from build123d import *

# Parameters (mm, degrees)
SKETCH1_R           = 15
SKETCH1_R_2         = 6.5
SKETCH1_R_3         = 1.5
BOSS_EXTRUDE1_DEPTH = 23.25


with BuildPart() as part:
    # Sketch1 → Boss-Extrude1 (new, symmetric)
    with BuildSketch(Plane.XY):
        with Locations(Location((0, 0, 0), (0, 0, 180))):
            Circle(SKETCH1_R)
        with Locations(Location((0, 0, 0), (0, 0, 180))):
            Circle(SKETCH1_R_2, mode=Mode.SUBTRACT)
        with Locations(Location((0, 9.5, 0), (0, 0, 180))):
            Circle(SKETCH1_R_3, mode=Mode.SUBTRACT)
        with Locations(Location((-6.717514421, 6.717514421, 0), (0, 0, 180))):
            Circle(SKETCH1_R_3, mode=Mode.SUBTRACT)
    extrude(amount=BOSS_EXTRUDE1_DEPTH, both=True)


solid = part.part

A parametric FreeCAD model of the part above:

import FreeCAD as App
import Part
import Sketcher
from FreeCAD import Vector
Q = App.Units.Quantity

doc = App.newDocument("Part")
body = doc.addObject("PartDesign::Body", "Body")

sketch1 = body.newObject("Sketcher::SketchObject", "Sketch")
sketch1.AttachmentSupport = (doc.getObject("XY_Plane"), [""])
sketch1.MapMode = "FlatFace"
sketch1.addGeometry(Part.Circle(Vector(0, 0, 0), Vector(0, 0, 1), 15), False)
sketch1.addGeometry(Part.Circle(Vector(0, 9.5, 0), Vector(0, 0, 1), 1.5), False)
sketch1.addGeometry(Part.Circle(Vector(-6.7, 6.7, 0), Vector(0, 0, 1), 1.5), False)
sketch1.addGeometry(Part.Circle(Vector(0, 0, 0), Vector(0, 0, 1), 6.5), False)
sketch1.addConstraint(Sketcher.Constraint("Coincident", 0, 3, -1, 1))
sketch1.addConstraint(Sketcher.Constraint("Coincident", 3, 3, -1, 1))
sketch1.addConstraint(Sketcher.Constraint("Equal", 1, 2))
sketch1.addConstraint(Sketcher.Constraint("PointOnObject", 1, 3, -2))
sketch1.addConstraint(Sketcher.Constraint("Diameter", 0, Q("30 mm")))
sketch1.addConstraint(Sketcher.Constraint("Diameter", 1, Q("3 mm")))
sketch1.addConstraint(Sketcher.Constraint("Diameter", 3, Q("13 mm")))
sketch1.addConstraint(Sketcher.Constraint("DistanceY", -1, 1, 1, 3, Q("9.5 mm")))
sketch1.addConstraint(Sketcher.Constraint("DistanceX", 2, 3, -1, 1, Q("6.717514 mm")))
sketch1.addConstraint(Sketcher.Constraint("DistanceY", -1, 1, 2, 3, Q("6.717514 mm")))
pad1 = body.newObject("PartDesign::Pad", "Pad")
pad1.Profile = sketch1
pad1.Length = 46.5
pad1.Midplane = True

doc.recompute()
